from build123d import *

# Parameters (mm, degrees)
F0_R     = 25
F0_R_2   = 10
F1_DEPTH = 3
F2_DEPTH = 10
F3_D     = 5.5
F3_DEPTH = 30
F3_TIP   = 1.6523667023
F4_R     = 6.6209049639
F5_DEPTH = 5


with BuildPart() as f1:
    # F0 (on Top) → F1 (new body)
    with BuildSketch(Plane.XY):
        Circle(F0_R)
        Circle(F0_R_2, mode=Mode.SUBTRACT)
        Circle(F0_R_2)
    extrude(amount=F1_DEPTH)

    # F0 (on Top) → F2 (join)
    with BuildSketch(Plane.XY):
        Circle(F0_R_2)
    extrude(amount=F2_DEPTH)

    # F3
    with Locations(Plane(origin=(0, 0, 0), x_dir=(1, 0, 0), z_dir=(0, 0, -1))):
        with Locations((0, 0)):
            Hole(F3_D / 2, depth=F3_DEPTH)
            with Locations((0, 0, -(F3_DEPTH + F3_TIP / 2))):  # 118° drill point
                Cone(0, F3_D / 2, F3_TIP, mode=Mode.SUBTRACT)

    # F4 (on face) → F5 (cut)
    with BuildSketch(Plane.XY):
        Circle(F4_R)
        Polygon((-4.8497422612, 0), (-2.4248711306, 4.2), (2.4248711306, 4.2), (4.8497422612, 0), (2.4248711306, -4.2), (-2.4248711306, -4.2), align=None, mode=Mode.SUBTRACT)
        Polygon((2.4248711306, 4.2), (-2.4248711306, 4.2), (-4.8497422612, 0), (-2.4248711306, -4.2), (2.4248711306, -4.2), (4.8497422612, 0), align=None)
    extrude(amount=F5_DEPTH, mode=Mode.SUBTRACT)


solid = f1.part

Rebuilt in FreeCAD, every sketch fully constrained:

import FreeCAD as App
import Part
import Sketcher
from FreeCAD import Vector

doc = App.newDocument("Part")
body = doc.addObject("PartDesign::Body", "Body")

sketch1 = body.newObject("Sketcher::SketchObject", "Sketch")
sketch1.AttachmentSupport = (doc.getObject("XY_Plane"), [""])
sketch1.MapMode = "FlatFace"
sketch1.addGeometry(Part.Circle(Vector(0, 0, 0), Vector(0, 0, 1), 25), False)
sketch1.addConstraint(Sketcher.Constraint("Coincident", 0, 3, -1, 1))
sketch1.addConstraint(Sketcher.Constraint("Diameter", 0, 50.0))
pad1 = body.newObject("PartDesign::Pad", "Pad")
pad1.Profile = sketch1
pad1.Length = 3

sketch2 = body.newObject("Sketcher::SketchObject", "Sketch001")
sketch2.AttachmentSupport = (doc.getObject("XY_Plane"), [""])
sketch2.MapMode = "FlatFace"
sketch2.addGeometry(Part.Circle(Vector(0, 0, 0), Vector(0, 0, 1), 10), False)
sketch2.addConstraint(Sketcher.Constraint("Coincident", 0, 3, -1, 1))
sketch2.addConstraint(Sketcher.Constraint("Diameter", 0, 20.0))
pad2 = body.newObject("PartDesign::Pad", "Pad001")
pad2.Profile = sketch2
pad2.Length = 10

sketch3 = body.newObject("Sketcher::SketchObject", "Sketch002")
sketch3.AttachmentSupport = (doc.getObject("XY_Plane"), [""])
sketch3.MapMode = "FlatFace"
sketch3.addGeometry(Part.Circle(Vector(0, 0, 0), Vector(0, 0, 1), 2.8), False)
sketch3.addConstraint(Sketcher.Constraint("Coincident", 0, 3, -1, 1))
sketch3.addConstraint(Sketcher.Constraint("Diameter", 0, 5.5))
doc.recompute()
hole = body.newObject("PartDesign::Hole", "Hole")
hole.Profile = sketch3
hole.ThreadType = "None"
hole.Diameter = 5.5
hole.DepthType = "Dimension"
hole.Depth = 30
hole.DrillPoint = "Angled"
hole.DrillPointAngle = 118
hole.Reversed = True

sketch4 = body.newObject("Sketcher::SketchObject", "Sketch003")
sketch4.AttachmentSupport = (doc.getObject("XY_Plane"), [""])
sketch4.MapMode = "FlatFace"
sketch4.addGeometry(Part.Circle(Vector(0, 0, 0), Vector(0, 0, 1), 7), False)
sketch4.addConstraint(Sketcher.Constraint("Coincident", 0, 3, -1, 1))
sketch4.addConstraint(Sketcher.Constraint("Diameter", 0, 13.24181))
pocket1 = body.newObject("PartDesign::Pocket", "Pocket")
pocket1.Profile = sketch4
pocket1.Length = 5
pocket1.Reversed = True

doc.recompute()
